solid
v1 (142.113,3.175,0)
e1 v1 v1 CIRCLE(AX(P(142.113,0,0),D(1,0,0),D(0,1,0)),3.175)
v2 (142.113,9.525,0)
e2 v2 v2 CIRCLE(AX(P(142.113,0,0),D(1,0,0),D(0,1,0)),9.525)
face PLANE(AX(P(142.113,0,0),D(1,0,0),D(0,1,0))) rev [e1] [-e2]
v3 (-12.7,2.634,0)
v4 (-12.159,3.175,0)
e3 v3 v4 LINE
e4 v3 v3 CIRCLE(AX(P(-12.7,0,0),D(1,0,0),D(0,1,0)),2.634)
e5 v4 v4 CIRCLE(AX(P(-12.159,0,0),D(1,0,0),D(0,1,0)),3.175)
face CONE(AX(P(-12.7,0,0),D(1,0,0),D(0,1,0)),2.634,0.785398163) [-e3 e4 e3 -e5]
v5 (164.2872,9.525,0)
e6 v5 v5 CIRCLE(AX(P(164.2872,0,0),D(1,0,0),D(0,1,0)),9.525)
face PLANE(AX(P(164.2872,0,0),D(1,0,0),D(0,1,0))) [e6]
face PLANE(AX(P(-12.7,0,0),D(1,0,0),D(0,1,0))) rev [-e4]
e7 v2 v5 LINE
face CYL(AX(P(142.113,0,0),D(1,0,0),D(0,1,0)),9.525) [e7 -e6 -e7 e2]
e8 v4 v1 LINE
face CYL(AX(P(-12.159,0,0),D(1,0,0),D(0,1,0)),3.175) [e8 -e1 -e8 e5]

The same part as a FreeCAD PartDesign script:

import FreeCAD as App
import Part
import Sketcher
from FreeCAD import Vector
Q = App.Units.Quantity

doc = App.newDocument("Part")
body = doc.addObject("PartDesign::Body", "Body")

# Sketch on XY plane
sketch1 = body.newObject("Sketcher::SketchObject", "Sketch")
sketch1.AttachmentSupport = (doc.getObject("XY_Plane"), [""])
sketch1.MapMode = "FlatFace"
sketch1.addGeometry([
    Part.LineSegment(Vector(0, 0, 0), Vector(164.3, 0, 0)),
    Part.LineSegment(Vector(164.3, 0, 0), Vector(164.3, 3.2, 0)),
    Part.LineSegment(Vector(164.3, 3.2, 0), Vector(0, 3.2, 0)),
    Part.LineSegment(Vector(0, 3.2, 0), Vector(0, 0, 0)),
], False)
sketch1.addConstraint([
    Sketcher.Constraint("Coincident", 0, 2, 1, 1),
    Sketcher.Constraint("Coincident", 1, 2, 2, 1),
    Sketcher.Constraint("Coincident", 2, 2, 3, 1),
    Sketcher.Constraint("Coincident", 3, 2, 0, 1),
    Sketcher.Constraint("Horizontal", 0),
    Sketcher.Constraint("Vertical", 1),
    Sketcher.Constraint("Horizontal", 2),
    Sketcher.Constraint("Vertical", 3),
    Sketcher.Constraint("Coincident", 3, 2, -1, 1),
    Sketcher.Constraint("DistanceX", 0, 1, 0, 2, Q("6.468 in")),
    Sketcher.Constraint("DistanceY", 1, 1, 1, 2, Q("0.125 in")),
])
revolution = body.newObject("PartDesign::Revolution", "Revolution")
revolution.Profile = sketch1
revolution.ReferenceAxis = (sketch1, ["H_Axis"])
revolution.Angle = 360

# Sketch on XY plane
sketch2 = body.newObject("Sketcher::SketchObject", "Sketch001")
sketch2.AttachmentSupport = (doc.getObject("XY_Plane"), [""])
sketch2.MapMode = "FlatFace"
sketch2.addGeometry([
    Part.LineSegment(Vector(142, 0, 0), Vector(164, 0, 0)),
    Part.LineSegment(Vector(164, 0, 0), Vector(164, 10, 0)),
    Part.LineSegment(Vector(164, 10, 0), Vector(142, 10, 0)),
    Part.LineSegment(Vector(142, 10, 0), Vector(142, 0, 0)),
], False)
sketch2.addConstraint([
    Sketcher.Constraint("Coincident", 0, 2, 1, 1),
    Sketcher.Constraint("Coincident", 1, 2, 2, 1),
    Sketcher.Constraint("Coincident", 2, 2, 3, 1),
    Sketcher.Constraint("Coincident", 3, 2, 0, 1),
    Sketcher.Constraint("Horizontal", 0),
    Sketcher.Constraint("Vertical", 1),
    Sketcher.Constraint("Horizontal", 2),
    Sketcher.Constraint("Vertical", 3),
    Sketcher.Constraint("PointOnObject", 0, 2, -1),
    Sketcher.Constraint("DistanceX", 0, 1, 0, 2, Q("0.873 in")),
    Sketcher.Constraint("DistanceY", 1, 1, 1, 2, Q("0.375 in")),
    Sketcher.Constraint("DistanceX", -1, 1, 0, 2, Q("6.468 in")),
])
revolution2 = body.newObject("PartDesign::Revolution", "Revolution001")
revolution2.Profile = sketch2
revolution2.ReferenceAxis = (sketch2, ["H_Axis"])
revolution2.Angle = 360

# Sketch on XY plane
sketch3 = body.newObject("Sketcher::SketchObject", "Sketch002")
sketch3.AttachmentSupport = (doc.getObject("XY_Plane"), [""])
sketch3.MapMode = "FlatFace"
sketch3.addGeometry([
    Part.LineSegment(Vector(-12.7, 0, 0), Vector(0, 0, 0)),  # 0
    Part.LineSegment(Vector(0, 0, 0), Vector(0, 3.2, 0)),  # 1
    Part.LineSegment(Vector(0, 3.2, 0), Vector(-12.2, 3.2, 0)),  # 2
    Part.LineSegment(Vector(-12.2, 3.2, 0), Vector(-12.7, 2.6, 0)),  # 3
    Part.LineSegment(Vector(-12.7, 2.6, 0), Vector(-12.7, 0, 0)),  # 4
], False)
sketch3.addConstraint([
    Sketcher.Constraint("Coincident", 0, 2, 1, 1),
    Sketcher.Constraint("Coincident", 1, 2, 2, 1),
    Sketcher.Constraint("Coincident", 2, 2, 3, 1),
    Sketcher.Constraint("Coincident", 3, 2, 4, 1),
    Sketcher.Constraint("Coincident", 4, 2, 0, 1),
    Sketcher.Constraint("Horizontal", 0),
    Sketcher.Constraint("Vertical", 1),
    Sketcher.Constraint("Horizontal", 2),
    Sketcher.Constraint("Vertical", 4),
    Sketcher.Constraint("Coincident", 0, 2, -1, 1),
    Sketcher.Constraint("DistanceX", 0, 1, 0, 2, Q("0.5 in")),
    Sketcher.Constraint("Angle", 3, Q("-135 deg")),
    Sketcher.Constraint("DistanceY", 1, 1, 1, 2, Q("0.125 in")),
    Sketcher.Constraint("DistanceX", 2, 2, 2, 1, Q("0.4787 in")),
])
revolution3 = body.newObject("PartDesign::Revolution", "Revolution002")
revolution3.Profile = sketch3
revolution3.ReferenceAxis = (sketch3, ["H_Axis"])
revolution3.Angle = 360

doc.recompute()
